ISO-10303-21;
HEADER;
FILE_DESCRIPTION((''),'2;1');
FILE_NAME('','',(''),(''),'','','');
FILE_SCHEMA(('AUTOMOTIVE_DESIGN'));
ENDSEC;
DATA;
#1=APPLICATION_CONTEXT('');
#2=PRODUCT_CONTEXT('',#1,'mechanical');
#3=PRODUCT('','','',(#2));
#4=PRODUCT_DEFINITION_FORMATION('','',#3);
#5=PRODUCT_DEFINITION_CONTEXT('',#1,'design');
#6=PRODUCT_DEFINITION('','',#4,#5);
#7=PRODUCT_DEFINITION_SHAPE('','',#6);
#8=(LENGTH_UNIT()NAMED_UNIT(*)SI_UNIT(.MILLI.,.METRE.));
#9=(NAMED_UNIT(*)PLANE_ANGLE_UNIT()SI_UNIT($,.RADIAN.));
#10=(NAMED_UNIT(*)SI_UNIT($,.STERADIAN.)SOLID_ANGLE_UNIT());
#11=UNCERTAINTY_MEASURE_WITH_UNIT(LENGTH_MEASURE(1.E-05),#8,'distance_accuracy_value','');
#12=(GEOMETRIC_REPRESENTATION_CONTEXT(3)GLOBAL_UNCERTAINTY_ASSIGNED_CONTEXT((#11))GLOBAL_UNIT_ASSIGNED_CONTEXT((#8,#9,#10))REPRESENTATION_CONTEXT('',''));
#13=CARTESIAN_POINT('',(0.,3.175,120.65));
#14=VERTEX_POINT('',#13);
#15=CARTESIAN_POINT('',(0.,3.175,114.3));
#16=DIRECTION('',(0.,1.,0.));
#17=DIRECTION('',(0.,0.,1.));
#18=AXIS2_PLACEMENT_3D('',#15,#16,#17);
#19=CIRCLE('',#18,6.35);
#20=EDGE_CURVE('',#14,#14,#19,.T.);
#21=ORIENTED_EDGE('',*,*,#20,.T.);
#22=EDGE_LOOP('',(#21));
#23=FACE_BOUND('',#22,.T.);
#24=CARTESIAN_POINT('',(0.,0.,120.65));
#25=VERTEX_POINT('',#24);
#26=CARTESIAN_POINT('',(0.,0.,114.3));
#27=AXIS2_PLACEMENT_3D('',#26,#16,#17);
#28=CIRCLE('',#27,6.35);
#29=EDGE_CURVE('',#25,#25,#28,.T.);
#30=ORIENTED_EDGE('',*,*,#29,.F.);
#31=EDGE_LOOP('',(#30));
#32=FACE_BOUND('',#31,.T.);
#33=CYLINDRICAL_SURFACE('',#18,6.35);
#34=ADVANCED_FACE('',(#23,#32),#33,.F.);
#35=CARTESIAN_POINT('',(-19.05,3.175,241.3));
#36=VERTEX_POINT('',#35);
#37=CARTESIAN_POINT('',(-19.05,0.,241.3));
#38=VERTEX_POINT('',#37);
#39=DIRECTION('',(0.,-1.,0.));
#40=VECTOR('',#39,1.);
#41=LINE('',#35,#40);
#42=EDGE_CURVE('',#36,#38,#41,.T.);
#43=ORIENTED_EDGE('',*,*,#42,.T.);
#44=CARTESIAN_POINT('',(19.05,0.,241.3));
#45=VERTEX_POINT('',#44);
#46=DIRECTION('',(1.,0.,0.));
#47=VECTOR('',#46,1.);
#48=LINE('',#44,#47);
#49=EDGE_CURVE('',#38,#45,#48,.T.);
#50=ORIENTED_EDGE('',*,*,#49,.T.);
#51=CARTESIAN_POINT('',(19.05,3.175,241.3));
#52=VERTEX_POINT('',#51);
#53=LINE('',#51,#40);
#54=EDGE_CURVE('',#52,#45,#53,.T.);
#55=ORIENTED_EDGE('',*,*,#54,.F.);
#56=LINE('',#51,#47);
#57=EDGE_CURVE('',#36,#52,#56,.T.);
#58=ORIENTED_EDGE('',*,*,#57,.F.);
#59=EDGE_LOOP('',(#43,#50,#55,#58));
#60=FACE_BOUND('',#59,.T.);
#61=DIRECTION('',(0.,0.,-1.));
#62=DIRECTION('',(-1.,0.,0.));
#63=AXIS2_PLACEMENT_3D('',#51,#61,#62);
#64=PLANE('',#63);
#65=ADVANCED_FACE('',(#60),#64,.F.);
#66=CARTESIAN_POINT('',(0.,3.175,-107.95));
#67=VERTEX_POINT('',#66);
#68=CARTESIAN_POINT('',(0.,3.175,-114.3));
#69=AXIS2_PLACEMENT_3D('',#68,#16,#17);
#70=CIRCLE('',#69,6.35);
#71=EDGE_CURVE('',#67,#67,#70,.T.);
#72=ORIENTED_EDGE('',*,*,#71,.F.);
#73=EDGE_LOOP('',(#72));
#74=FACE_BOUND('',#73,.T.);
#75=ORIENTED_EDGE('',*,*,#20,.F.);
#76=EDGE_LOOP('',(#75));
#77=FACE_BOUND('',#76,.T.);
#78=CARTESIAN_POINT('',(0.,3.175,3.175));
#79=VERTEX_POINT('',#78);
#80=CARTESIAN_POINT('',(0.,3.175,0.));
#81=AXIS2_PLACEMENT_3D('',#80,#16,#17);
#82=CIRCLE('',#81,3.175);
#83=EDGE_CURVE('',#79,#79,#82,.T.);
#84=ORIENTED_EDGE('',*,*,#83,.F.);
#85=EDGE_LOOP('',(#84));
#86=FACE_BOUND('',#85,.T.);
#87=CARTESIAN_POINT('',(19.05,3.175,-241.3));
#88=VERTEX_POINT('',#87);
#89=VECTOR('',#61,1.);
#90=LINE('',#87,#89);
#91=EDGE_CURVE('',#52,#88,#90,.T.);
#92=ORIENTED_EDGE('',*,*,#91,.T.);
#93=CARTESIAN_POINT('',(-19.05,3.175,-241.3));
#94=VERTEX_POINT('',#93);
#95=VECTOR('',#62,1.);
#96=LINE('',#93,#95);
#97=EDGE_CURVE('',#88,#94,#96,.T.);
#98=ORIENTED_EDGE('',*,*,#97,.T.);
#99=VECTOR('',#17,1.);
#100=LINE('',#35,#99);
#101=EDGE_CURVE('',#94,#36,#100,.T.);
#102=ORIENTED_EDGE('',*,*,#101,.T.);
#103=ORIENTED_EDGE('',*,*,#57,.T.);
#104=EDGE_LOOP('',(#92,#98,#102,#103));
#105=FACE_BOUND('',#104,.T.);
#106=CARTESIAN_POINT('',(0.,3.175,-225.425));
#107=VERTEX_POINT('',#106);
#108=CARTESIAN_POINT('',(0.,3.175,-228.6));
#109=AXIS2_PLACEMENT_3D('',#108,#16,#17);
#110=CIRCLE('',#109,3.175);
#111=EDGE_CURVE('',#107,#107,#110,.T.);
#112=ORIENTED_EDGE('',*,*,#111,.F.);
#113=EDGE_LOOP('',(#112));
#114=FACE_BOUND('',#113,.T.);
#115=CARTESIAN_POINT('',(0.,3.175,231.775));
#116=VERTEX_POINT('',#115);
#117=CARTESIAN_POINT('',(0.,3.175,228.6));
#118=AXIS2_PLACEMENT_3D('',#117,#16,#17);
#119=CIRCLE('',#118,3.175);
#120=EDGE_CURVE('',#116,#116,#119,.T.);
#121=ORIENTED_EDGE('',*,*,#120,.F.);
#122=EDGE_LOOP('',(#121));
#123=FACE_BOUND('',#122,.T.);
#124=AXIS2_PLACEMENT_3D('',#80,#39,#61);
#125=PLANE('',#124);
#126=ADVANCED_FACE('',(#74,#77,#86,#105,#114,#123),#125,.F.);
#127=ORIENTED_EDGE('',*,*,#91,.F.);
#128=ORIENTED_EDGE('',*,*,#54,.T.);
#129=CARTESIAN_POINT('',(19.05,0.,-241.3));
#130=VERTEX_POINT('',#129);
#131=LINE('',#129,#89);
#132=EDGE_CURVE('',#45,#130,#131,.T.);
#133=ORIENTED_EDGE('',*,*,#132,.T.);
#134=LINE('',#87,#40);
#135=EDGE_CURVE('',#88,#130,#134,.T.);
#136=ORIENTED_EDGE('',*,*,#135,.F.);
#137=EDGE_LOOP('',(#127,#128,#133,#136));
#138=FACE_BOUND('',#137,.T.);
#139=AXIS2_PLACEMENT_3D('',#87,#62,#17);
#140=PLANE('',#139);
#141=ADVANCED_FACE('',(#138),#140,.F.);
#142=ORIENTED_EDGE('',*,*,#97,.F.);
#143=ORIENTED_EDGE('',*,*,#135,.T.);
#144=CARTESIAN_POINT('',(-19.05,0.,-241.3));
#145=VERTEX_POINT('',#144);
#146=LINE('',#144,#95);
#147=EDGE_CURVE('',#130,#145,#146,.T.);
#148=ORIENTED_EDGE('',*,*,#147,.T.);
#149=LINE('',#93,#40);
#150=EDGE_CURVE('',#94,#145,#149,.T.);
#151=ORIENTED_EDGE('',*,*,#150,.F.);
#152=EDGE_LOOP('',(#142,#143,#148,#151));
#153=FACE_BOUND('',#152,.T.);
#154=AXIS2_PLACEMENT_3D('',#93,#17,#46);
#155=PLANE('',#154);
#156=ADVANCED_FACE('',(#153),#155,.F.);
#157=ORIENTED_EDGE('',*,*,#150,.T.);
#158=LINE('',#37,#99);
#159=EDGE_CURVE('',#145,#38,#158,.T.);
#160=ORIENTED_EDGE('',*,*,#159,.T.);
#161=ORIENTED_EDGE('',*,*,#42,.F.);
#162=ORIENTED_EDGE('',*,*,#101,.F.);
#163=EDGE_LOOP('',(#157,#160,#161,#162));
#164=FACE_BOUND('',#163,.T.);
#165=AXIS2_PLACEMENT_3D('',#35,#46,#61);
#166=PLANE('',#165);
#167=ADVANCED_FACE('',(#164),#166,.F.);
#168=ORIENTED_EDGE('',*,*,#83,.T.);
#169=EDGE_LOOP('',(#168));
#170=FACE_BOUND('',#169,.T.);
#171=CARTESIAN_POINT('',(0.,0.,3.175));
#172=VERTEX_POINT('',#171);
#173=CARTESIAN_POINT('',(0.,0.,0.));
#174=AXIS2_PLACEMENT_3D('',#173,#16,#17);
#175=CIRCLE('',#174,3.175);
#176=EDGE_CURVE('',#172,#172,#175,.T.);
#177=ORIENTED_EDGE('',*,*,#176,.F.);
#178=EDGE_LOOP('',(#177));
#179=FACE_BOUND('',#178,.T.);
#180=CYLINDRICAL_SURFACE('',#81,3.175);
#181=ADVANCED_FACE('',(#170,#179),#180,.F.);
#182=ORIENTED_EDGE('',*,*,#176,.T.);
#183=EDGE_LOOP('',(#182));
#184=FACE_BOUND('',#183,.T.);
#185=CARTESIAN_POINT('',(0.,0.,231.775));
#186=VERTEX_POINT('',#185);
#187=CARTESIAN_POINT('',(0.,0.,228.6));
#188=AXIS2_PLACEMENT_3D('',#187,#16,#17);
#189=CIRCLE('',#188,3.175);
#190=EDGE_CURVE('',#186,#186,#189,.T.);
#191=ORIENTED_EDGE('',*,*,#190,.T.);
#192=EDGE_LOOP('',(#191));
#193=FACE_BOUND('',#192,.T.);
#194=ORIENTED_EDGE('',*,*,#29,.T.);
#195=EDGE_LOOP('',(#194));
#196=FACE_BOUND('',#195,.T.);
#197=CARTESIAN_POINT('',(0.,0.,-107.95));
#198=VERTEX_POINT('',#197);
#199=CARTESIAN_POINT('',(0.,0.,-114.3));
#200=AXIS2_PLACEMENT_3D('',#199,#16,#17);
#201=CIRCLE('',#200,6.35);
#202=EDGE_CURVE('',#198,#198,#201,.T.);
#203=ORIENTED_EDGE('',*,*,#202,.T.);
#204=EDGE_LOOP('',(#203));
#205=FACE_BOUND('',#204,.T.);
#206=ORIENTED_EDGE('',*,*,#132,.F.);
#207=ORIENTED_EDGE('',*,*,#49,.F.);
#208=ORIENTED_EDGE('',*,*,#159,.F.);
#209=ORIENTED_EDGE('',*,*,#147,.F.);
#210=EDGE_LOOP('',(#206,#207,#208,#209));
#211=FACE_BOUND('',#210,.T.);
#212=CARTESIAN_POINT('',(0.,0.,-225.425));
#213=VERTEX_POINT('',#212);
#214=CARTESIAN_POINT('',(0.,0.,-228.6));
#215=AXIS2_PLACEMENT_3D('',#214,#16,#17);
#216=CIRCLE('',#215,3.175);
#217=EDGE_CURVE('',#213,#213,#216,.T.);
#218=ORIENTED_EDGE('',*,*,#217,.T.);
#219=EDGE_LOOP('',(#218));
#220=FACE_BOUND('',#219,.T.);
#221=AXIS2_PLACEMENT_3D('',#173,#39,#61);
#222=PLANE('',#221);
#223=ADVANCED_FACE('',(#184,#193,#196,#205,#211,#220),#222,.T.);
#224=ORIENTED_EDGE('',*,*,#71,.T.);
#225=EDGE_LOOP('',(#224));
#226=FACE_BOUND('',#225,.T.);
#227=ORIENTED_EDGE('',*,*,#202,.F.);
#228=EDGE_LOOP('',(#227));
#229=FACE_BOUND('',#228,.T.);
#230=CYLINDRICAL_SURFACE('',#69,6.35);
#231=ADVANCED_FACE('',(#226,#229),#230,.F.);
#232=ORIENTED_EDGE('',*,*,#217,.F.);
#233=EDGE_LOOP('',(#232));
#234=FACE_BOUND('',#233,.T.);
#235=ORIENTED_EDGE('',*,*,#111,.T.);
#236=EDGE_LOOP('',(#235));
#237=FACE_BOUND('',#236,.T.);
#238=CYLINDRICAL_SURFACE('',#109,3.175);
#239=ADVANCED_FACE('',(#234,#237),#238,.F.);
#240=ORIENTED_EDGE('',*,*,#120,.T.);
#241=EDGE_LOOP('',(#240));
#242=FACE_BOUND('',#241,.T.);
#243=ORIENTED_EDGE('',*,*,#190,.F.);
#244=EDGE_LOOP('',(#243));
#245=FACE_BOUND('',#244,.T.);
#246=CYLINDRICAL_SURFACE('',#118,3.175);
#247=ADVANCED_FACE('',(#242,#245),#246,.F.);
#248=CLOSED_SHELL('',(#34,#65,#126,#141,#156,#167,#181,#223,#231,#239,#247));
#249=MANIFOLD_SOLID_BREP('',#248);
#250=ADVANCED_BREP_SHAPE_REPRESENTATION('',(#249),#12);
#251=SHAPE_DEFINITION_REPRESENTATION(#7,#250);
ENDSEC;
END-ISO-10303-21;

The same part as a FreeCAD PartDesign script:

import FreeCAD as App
import Part
import Sketcher
from FreeCAD import Vector
Q = App.Units.Quantity

doc = App.newDocument("Part")
body = doc.addObject("PartDesign::Body", "Body")

sketch1 = body.newObject("Sketcher::SketchObject", "Sketch")
sketch1.AttachmentSupport = (doc.getObject("XZ_Plane"), [""])
sketch1.MapMode = "FlatFace"
sketch1.addGeometry([
    Part.LineSegment(Vector(19, 241, 0), Vector(19, -241, 0)),
    Part.LineSegment(Vector(19, -241, 0), Vector(-19, -241, 0)),
    Part.LineSegment(Vector(-19, -241, 0), Vector(-19, 241, 0)),
    Part.LineSegment(Vector(-19, 241, 0), Vector(19, 241, 0)),
], False)
sketch1.addConstraint([
    Sketcher.Constraint("Coincident", 0, 2, 1, 1),
    Sketcher.Constraint("Coincident", 1, 2, 2, 1),
    Sketcher.Constraint("Coincident", 2, 2, 3, 1),
    Sketcher.Constraint("Coincident", 3, 2, 0, 1),
    Sketcher.Constraint("Vertical", 0),
    Sketcher.Constraint("Horizontal", 1),
    Sketcher.Constraint("Vertical", 2),
    Sketcher.Constraint("Horizontal", 3),
    Sketcher.Constraint("Symmetric", 0, 2, 2, 2, -1, 1),
    Sketcher.Constraint("DistanceY", 0, 2, 0, 1, Q("19 in")),
    Sketcher.Constraint("DistanceX", 1, 2, 1, 1, Q("1.5 in")),
])
pad1 = body.newObject("PartDesign::Pad", "Pad")
pad1.Profile = sketch1
pad1.Length = Q("0.125 in")
pad1.Reversed = True

sketch2 = body.newObject("Sketcher::SketchObject", "Sketch001")
sketch2.AttachmentSupport = (doc.getObject("XZ_Plane"), [""])
sketch2.MapMode = "FlatFace"
sketch2.AttachmentOffset = App.Placement(Vector(0, 0, -0.125 * 25.4), App.Rotation())
sketch2.addGeometry([
    Part.Circle(Vector(0, 228.6, 0), Vector(0, 0, 1), 3.2),
    Part.Circle(Vector(0, -228.6, 0), Vector(0, 0, 1), 3.2),
    Part.Circle(Vector(0, 0, 0), Vector(0, 0, 1), 3.2),
], False)
sketch2.addConstraint([
    Sketcher.Constraint("Coincident", 2, 3, -1, 1),
    Sketcher.Constraint("Equal", 0, 1),
    Sketcher.Constraint("Equal", 1, 2),
    Sketcher.Constraint("Symmetric", 0, 3, 1, 3, -1, 1),
    Sketcher.Constraint("PointOnObject", 0, 3, -2),
    Sketcher.Constraint("Diameter", 0, Q("0.25 in")),
    Sketcher.Constraint("DistanceY", -1, 1, 0, 3, Q("9 in")),
])
doc.recompute()
hole = body.newObject("PartDesign::Hole", "Hole")
hole.Profile = sketch2
hole.ThreadType = "None"
hole.Diameter = Q("0.25 in")
hole.DepthType = "ThroughAll"
hole.Reversed = True

sketch3 = body.newObject("Sketcher::SketchObject", "Sketch002")
sketch3.AttachmentSupport = (doc.getObject("XZ_Plane"), [""])
sketch3.MapMode = "FlatFace"
sketch3.AttachmentOffset = App.Placement(Vector(0, 0, -0.125 * 25.4), App.Rotation())
sketch3.addGeometry([
    Part.Circle(Vector(0, 102, 0), Vector(0, 0, 1), 6),
    Part.Circle(Vector(0, -102, 0), Vector(0, 0, 1), 6),
], False)
sketch3.addConstraint([
    Sketcher.Constraint("Equal", 0, 1),
    Sketcher.Constraint("Symmetric", 0, 3, 1, 3, -1, 1),
    Sketcher.Constraint("PointOnObject", 0, 3, -2),
    Sketcher.Constraint("Diameter", 0, Q("0.5 in")),
    Sketcher.Constraint("DistanceY", -1, 1, 0, 3, Q("4 in")),
])
doc.recompute()
hole2 = body.newObject("PartDesign::Hole", "Hole001")
hole2.Profile = sketch3
hole2.ThreadType = "None"
hole2.Diameter = Q("0.5 in")
hole2.DepthType = "ThroughAll"
hole2.Reversed = True

sketch4 = body.newObject("Sketcher::SketchObject", "Sketch003")
sketch4.AttachmentSupport = (doc.getObject("XZ_Plane"), [""])
sketch4.MapMode = "FlatFace"
sketch4.addGeometry([
    Part.Circle(Vector(0, 102, 0), Vector(0, 0, 1), 6),
    Part.Circle(Vector(0, -102, 0), Vector(0, 0, 1), 6),
], False)
sketch4.addConstraint([
    Sketcher.Constraint("Equal", 0, 1),
    Sketcher.Constraint("Symmetric", 0, 3, 1, 3, -1, 1),
    Sketcher.Constraint("PointOnObject", 0, 3, -2),
    Sketcher.Constraint("Diameter", 0, Q("0.5 in")),
    Sketcher.Constraint("DistanceY", -1, 1, 0, 3, Q("4 in")),
])
pad2 = body.newObject("PartDesign::Pad", "Pad001")
pad2.Profile = sketch4
pad2.Length = Q("0.125 in")
pad2.Reversed = True

sketch5 = body.newObject("Sketcher::SketchObject", "Sketch004")
sketch5.AttachmentSupport = (doc.getObject("XZ_Plane"), [""])
sketch5.MapMode = "FlatFace"
sketch5.AttachmentOffset = App.Placement(Vector(0, 0, -0.125 * 25.4), App.Rotation())
sketch5.addGeometry([
    Part.Circle(Vector(0, -114, 0), Vector(0, 0, 1), 6),
    Part.Circle(Vector(0, 114, 0), Vector(0, 0, 1), 6),
], False)
sketch5.addConstraint([
    Sketcher.Constraint("Equal", 0, 1),
    Sketcher.Constraint("Symmetric", 0, 3, 1, 3, -1, 1),
    Sketcher.Constraint("PointOnObject", 0, 3, -2),
    Sketcher.Constraint("Diameter", 0, Q("0.5 in")),
    Sketcher.Constraint("DistanceY", 0, 3, 1, 3, Q("9 in")),
])
doc.recompute()
hole3 = body.newObject("PartDesign::Hole", "Hole002")
hole3.Profile = sketch5
hole3.ThreadType = "None"
hole3.Diameter = Q("0.5 in")
hole3.DepthType = "ThroughAll"
hole3.Reversed = True

sketch6 = body.newObject("Sketcher::SketchObject", "Sketch005")
sketch6.AttachmentSupport = (doc.getObject("XZ_Plane"), [""])
sketch6.MapMode = "FlatFace"
sketch6.AttachmentOffset = App.Placement(Vector(0, 0, -0.125 * 25.4), App.Rotation())
sketch6.addGeometry([
    Part.Circle(Vector(0, 88.9, 0), Vector(0, 0, 1), 2),
    Part.Circle(Vector(0, 139.7, 0), Vector(0, 0, 1), 2),
    Part.Circle(Vector(0, -88.9, 0), Vector(0, 0, 1), 2),
    Part.Circle(Vector(0, -139.7, 0), Vector(0, 0, 1), 2),
], False)
sketch6.addConstraint([
    Sketcher.Constraint("Equal", 0, 1),
    Sketcher.Constraint("Equal", 1, 2),
    Sketcher.Constraint("Equal", 2, 3),
    Sketcher.Constraint("Symmetric", 0, 3, 2, 3, -1, 1),
    Sketcher.Constraint("Symmetric", 1, 3, 3, 3, -1, 1),
    Sketcher.Constraint("PointOnObject", 0, 3, -2),
    Sketcher.Constraint("PointOnObject", 1, 3, -2),
    Sketcher.Constraint("Diameter", 0, Q("0.15625 in")),
    Sketcher.Constraint("DistanceY", 0, 3, 1, 3, Q("2 in")),
    Sketcher.Constraint("DistanceY", 2, 3, 0, 3, Q("7 in")),
])
doc.recompute()
hole4 = body.newObject("PartDesign::Hole", "Hole003")
hole4.Profile = sketch6
hole4.ThreadType = "None"
hole4.Diameter = Q("0.15625 in")
hole4.DepthType = "ThroughAll"
hole4.Reversed = True

sketch7 = body.newObject("Sketcher::SketchObject", "Sketch006")
sketch7.AttachmentSupport = (doc.getObject("XZ_Plane"), [""])
sketch7.MapMode = "FlatFace"
sketch7.addGeometry([
    Part.Circle(Vector(0, -88.9, 0), Vector(0, 0, 1), 2),
    Part.Circle(Vector(0, 88.9, 0), Vector(0, 0, 1), 2),
    Part.Circle(Vector(0, 139.7, 0), Vector(0, 0, 1), 2),
    Part.Circle(Vector(0, -139.7, 0), Vector(0, 0, 1), 2),
], False)
sketch7.addConstraint([
    Sketcher.Constraint("Equal", 0, 1),
    Sketcher.Constraint("Equal", 1, 2),
    Sketcher.Constraint("Equal", 2, 3),
    Sketcher.Constraint("Symmetric", 0, 3, 1, 3, -1, 1),
    Sketcher.Constraint("Symmetric", 2, 3, 3, 3, -1, 1),
    Sketcher.Constraint("PointOnObject", 0, 3, -2),
    Sketcher.Constraint("PointOnObject", 2, 3, -2),
    Sketcher.Constraint("Diameter", 0, Q("0.15625 in")),
    Sketcher.Constraint("DistanceY", 0, 3, 1, 3, Q("7 in")),
    Sketcher.Constraint("DistanceY", 1, 3, 2, 3, Q("2 in")),
])
pad3 = body.newObject("PartDesign::Pad", "Pad002")
pad3.Profile = sketch7
pad3.Length = Q("0.125 in")
pad3.Reversed = True

doc.recompute()
